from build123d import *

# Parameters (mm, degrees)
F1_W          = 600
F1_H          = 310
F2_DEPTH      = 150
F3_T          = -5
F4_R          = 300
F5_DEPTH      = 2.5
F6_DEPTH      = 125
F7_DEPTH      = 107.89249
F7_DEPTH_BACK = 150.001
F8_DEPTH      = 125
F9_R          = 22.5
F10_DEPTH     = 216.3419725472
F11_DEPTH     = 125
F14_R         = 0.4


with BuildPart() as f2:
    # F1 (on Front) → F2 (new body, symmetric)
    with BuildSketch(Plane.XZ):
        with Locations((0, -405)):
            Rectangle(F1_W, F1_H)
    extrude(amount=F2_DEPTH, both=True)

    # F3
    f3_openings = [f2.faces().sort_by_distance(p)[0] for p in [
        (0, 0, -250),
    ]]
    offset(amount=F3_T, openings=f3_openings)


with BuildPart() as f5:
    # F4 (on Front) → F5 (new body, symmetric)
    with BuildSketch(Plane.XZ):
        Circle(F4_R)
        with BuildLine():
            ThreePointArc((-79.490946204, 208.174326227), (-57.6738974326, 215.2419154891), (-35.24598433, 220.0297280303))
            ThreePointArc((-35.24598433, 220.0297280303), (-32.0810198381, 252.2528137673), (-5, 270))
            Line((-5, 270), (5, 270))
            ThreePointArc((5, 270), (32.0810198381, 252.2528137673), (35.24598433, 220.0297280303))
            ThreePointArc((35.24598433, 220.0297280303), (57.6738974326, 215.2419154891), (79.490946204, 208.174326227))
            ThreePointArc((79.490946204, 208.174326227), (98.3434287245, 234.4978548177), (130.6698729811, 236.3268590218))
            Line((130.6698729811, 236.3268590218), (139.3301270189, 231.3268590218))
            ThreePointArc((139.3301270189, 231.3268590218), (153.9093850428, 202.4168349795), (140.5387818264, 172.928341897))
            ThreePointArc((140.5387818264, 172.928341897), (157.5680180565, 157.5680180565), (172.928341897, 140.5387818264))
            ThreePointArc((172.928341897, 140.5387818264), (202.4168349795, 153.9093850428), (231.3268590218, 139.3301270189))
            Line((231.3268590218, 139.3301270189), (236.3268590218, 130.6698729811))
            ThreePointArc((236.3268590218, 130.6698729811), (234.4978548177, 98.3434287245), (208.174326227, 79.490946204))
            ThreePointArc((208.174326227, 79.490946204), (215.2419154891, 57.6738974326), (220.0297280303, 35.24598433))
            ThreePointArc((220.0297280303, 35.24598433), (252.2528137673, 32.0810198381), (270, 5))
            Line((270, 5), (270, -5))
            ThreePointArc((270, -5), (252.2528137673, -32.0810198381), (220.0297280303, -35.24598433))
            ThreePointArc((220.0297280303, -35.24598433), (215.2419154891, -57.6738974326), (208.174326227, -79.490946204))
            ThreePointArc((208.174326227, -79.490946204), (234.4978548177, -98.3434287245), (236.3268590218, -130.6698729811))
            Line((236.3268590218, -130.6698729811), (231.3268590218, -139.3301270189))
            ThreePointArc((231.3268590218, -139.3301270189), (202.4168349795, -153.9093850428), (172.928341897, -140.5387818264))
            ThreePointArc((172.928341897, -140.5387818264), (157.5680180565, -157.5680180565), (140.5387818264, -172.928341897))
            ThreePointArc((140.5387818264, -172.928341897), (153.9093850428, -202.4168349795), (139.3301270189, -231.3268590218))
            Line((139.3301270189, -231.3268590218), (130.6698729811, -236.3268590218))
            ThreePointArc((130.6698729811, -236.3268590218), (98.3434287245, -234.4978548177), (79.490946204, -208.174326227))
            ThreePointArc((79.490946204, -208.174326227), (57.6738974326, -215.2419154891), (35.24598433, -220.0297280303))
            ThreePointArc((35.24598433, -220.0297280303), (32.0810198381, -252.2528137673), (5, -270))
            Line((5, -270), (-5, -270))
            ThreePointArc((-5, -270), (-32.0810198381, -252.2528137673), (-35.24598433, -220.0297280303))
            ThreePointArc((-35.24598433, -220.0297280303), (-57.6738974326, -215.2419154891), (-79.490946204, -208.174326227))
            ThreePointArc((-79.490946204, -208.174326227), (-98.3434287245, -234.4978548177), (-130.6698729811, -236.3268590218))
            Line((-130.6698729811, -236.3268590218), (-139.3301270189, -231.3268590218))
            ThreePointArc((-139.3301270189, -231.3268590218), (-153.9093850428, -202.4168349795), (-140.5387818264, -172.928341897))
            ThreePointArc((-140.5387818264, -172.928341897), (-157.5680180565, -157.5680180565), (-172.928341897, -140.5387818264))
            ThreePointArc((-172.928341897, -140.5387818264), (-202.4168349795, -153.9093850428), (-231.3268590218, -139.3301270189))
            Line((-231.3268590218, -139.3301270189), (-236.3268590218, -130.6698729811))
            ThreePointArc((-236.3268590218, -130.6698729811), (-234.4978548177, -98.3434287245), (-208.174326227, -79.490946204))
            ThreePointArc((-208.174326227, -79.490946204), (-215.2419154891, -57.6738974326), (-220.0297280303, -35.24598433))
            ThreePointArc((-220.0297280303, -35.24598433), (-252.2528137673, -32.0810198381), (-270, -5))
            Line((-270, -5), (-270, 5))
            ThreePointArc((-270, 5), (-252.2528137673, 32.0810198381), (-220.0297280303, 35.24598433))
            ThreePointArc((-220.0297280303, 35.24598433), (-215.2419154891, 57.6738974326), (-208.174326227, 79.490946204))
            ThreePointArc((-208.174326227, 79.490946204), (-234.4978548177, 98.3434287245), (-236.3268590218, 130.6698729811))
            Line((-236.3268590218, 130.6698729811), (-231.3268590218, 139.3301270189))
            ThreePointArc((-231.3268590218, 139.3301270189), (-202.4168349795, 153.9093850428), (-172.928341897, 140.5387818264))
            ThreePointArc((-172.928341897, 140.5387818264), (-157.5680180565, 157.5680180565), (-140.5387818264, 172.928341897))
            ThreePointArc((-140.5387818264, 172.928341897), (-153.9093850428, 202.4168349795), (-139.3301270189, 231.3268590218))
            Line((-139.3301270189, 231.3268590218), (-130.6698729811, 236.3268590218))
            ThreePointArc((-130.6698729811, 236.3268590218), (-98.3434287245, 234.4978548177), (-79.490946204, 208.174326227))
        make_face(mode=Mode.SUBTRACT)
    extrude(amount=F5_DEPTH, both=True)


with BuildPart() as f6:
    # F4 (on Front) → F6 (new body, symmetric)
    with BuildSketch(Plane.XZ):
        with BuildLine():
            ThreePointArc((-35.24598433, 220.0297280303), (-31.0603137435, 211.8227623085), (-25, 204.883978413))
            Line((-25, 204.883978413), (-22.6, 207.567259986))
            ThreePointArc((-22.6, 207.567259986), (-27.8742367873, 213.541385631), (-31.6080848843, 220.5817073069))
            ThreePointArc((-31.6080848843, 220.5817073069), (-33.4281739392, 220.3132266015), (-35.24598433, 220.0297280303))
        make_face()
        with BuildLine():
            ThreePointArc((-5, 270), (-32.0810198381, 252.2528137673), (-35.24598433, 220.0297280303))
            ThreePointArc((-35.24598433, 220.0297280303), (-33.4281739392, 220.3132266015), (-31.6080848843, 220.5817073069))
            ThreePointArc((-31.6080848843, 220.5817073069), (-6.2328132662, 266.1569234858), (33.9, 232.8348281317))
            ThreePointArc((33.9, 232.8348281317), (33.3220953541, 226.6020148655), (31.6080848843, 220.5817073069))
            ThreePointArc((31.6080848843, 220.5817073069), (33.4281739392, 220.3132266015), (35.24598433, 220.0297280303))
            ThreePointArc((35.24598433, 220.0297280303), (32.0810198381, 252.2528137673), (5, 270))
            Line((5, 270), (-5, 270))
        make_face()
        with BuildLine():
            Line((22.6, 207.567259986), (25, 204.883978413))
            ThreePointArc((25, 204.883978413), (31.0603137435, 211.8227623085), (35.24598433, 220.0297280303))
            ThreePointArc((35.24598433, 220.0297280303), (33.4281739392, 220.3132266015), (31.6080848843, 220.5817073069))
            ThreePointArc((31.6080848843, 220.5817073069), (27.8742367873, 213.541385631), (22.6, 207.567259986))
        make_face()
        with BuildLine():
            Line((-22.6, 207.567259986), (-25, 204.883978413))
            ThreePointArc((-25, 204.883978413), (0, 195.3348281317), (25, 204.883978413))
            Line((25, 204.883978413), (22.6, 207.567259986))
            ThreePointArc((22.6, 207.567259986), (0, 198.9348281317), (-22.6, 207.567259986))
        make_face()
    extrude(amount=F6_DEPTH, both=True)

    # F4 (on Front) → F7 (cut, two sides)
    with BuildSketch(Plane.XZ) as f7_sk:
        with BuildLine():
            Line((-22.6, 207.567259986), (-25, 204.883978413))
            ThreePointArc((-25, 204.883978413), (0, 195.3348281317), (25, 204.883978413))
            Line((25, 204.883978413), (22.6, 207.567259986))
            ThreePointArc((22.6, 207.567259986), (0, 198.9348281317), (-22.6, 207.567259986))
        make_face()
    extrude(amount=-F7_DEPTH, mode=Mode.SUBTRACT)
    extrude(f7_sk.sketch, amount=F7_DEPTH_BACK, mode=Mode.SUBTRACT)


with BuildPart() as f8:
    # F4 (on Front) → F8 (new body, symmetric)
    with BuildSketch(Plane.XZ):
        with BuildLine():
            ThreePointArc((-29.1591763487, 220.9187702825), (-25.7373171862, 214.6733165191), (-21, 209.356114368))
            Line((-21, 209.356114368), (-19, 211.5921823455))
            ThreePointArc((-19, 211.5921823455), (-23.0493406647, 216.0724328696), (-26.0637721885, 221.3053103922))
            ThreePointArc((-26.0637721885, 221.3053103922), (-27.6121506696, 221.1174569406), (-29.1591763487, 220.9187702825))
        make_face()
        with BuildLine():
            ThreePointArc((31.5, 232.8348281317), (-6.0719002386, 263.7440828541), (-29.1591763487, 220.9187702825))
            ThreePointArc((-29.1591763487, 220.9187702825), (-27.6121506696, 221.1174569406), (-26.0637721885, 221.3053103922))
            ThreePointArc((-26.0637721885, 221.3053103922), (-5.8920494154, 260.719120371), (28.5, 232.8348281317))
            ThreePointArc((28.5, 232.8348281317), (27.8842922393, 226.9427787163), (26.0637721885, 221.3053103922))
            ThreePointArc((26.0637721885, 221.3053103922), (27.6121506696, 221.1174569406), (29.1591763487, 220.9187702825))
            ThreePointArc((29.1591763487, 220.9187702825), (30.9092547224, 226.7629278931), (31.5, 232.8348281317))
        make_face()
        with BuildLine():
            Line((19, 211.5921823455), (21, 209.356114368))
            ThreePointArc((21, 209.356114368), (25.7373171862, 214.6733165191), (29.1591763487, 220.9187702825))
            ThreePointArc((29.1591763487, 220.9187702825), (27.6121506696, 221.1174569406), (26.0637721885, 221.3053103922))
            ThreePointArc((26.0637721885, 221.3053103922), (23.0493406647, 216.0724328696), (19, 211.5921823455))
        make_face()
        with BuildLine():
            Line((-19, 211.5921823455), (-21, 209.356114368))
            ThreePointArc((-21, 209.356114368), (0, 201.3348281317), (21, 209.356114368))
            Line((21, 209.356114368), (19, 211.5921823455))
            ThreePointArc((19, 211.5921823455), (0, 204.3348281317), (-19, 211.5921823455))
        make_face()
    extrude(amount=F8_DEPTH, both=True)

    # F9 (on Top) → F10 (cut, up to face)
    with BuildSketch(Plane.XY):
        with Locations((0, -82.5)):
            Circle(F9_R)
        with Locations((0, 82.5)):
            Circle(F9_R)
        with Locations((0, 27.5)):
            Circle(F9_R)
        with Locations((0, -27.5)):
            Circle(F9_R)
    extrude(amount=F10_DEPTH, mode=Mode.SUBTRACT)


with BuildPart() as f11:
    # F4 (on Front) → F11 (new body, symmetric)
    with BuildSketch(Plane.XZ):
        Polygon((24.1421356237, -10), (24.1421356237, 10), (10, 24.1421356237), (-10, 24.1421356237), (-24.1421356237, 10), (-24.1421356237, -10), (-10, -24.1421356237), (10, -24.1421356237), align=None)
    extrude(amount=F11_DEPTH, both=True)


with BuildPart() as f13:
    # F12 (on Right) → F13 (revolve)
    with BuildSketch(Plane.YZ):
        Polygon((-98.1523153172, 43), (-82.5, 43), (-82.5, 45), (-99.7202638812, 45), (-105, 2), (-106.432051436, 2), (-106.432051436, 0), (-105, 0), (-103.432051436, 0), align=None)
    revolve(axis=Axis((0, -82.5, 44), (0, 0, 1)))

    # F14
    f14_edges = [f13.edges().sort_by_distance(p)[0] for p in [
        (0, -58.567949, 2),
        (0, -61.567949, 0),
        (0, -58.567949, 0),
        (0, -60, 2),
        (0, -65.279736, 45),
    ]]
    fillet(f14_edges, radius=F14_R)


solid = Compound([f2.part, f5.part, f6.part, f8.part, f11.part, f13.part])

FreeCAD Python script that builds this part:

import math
import FreeCAD as App
import Part
import Sketcher

V = App.Vector
Q = App.Units.Quantity


def edges_at(feature, points):
    """Names of the edges that pass closest to the given points."""
    edges = feature.Shape.Edges
    near = lambda p: min(range(len(edges)), key=lambda i: edges[i].distToShape(Part.Vertex(*p))[0])
    return sorted({f"Edge{near(p) + 1}" for p in points})


def faces_at(feature, points):
    """Names of the faces that lie closest to the given points."""
    faces = feature.Shape.Faces
    near = lambda p: min(range(len(faces)), key=lambda i: faces[i].distToShape(Part.Vertex(*p))[0])
    return sorted({f"Face{near(p) + 1}" for p in points})


def add_polygon(sketch, points):
    """Adds a closed chain of lines whose ends are joined by coincident constraints."""
    first, n = sketch.GeometryCount, len(points)
    for a, b in zip(points, points[1:] + points[:1]):
        sketch.addGeometry(Part.LineSegment(App.Vector(*a, 0), App.Vector(*b, 0)), False)
    for i in range(n):
        sketch.addConstraint(Sketcher.Constraint("Coincident", first + i, 2, first + (i + 1) % n, 1))

doc = App.newDocument("Part")
body = doc.addObject("PartDesign::Body", "Body")

sketch1 = body.newObject("Sketcher::SketchObject", "Sketch")
sketch1.AttachmentSupport = (doc.getObject("XZ_Plane"), [""])
sketch1.MapMode = "FlatFace"
add_polygon(sketch1, [(-300, -250), (-300, -560), (300, -560), (300, -250)])
sketch1.addConstraint(Sketcher.Constraint("Vertical", 0))
sketch1.addConstraint(Sketcher.Constraint("Horizontal", 1))
sketch1.addConstraint(Sketcher.Constraint("Vertical", 2))
sketch1.addConstraint(Sketcher.Constraint("Horizontal", 3))
sketch1.addConstraint(Sketcher.Constraint("DistanceX", 1, 1, 1, 2, 600.0))
sketch1.addConstraint(Sketcher.Constraint("DistanceY", 0, 2, 0, 1, 310.0))
sketch1.addConstraint(Sketcher.Constraint("DistanceX", 0, 2, -1, 1, 300.0))
sketch1.addConstraint(Sketcher.Constraint("DistanceY", 0, 2, -1, 1, 560.0))
pad1 = body.newObject("PartDesign::Pad", "Pad")
pad1.Profile = sketch1
pad1.Length = 300
pad1.Midplane = True
doc.recompute()

thickness = body.newObject("PartDesign::Thickness", "Thickness")
thickness.Base = (pad1, faces_at(pad1, [(0, 0, -250)]))
thickness.Value = 5
thickness.Reversed = True
thickness.Join = "Arc"
body2 = doc.addObject("PartDesign::Body", "Body001")

sketch2 = body2.newObject("Sketcher::SketchObject", "Sketch001")
sketch2.AttachmentSupport = (doc.getObject("XZ_Plane001"), [""])
sketch2.MapMode = "FlatFace"
sketch2.addGeometry(Part.Circle(V(0, 0, 0), V(0, 0, 1), 300), False)
sketch2.addGeometry(Part.ArcOfCircle(Part.Circle(V(-116, 202, 0), V(0, 0, 1), 38), math.radians(10), math.radians(112)), False)
sketch2.addGeometry(Part.ArcOfCircle(Part.Circle(V(0, 0, 0), V(0, 0, 1), 223), math.radians(99.1), math.radians(110.9)), False)
sketch2.addGeometry(Part.ArcOfCircle(Part.Circle(V(0, 233, 0), V(0, 0, 1), 38), math.radians(98), math.radians(200)), False)
sketch2.addGeometry(Part.LineSegment(V(-5, 270, 0), V(5, 270, 0)), False)
sketch2.addGeometry(Part.ArcOfCircle(Part.Circle(V(0, 233, 0), V(0, 0, 1), 38), math.radians(-20), math.radians(82)), False)
sketch2.addGeometry(Part.ArcOfCircle(Part.Circle(V(0, 0, 0), V(0, 0, 1), 223), math.radians(69.1), math.radians(80.9)), False)
sketch2.addGeometry(Part.ArcOfCircle(Part.Circle(V(116, 202, 0), V(0, 0, 1), 38), math.radians(68), math.radians(170)), False)
sketch2.addGeometry(Part.LineSegment(V(131, 236, 0), V(139, 231, 0)), False)
sketch2.addGeometry(Part.ArcOfCircle(Part.Circle(V(116, 202, 0), V(0, 0, 1), 38), math.radians(-50), math.radians(52)), False)
sketch2.addGeometry(Part.ArcOfCircle(Part.Circle(V(0, 0, 0), V(0, 0, 1), 223), math.radians(39.1), math.radians(50.9)), False)
sketch2.addGeometry(Part.ArcOfCircle(Part.Circle(V(202, 116, 0), V(0, 0, 1), 38), math.radians(38), math.radians(140)), False)
sketch2.addGeometry(Part.LineSegment(V(231, 139, 0), V(236, 131, 0)), False)
sketch2.addGeometry(Part.ArcOfCircle(Part.Circle(V(202, 116, 0), V(0, 0, 1), 38), math.radians(-80), math.radians(22)), False)
sketch2.addGeometry(Part.ArcOfCircle(Part.Circle(V(0, 0, 0), V(0, 0, 1), 223), math.radians(9.1), math.radians(20.9)), False)
sketch2.addGeometry(Part.ArcOfCircle(Part.Circle(V(233, 0, 0), V(0, 0, 1), 38), math.radians(8), math.radians(110)), False)
sketch2.addGeometry(Part.LineSegment(V(270, 5, 0), V(270, -5, 0)), False)
sketch2.addGeometry(Part.ArcOfCircle(Part.Circle(V(233, 0, 0), V(0, 0, 1), 38), math.radians(-110), math.radians(-8)), False)
sketch2.addGeometry(Part.ArcOfCircle(Part.Circle(V(0, 0, 0), V(0, 0, 1), 223), math.radians(-20.9), math.radians(-9.1)), False)
sketch2.addGeometry(Part.ArcOfCircle(Part.Circle(V(202, -116, 0), V(0, 0, 1), 38), math.radians(-22), math.radians(80)), False)
sketch2.addGeometry(Part.LineSegment(V(236, -131, 0), V(231, -139, 0)), False)
sketch2.addGeometry(Part.ArcOfCircle(Part.Circle(V(202, -116, 0), V(0, 0, 1), 38), math.radians(-140), math.radians(-38)), False)
sketch2.addGeometry(Part.ArcOfCircle(Part.Circle(V(0, 0, 0), V(0, 0, 1), 223), math.radians(-50.9), math.radians(-39.1)), False)
sketch2.addGeometry(Part.ArcOfCircle(Part.Circle(V(116, -202, 0), V(0, 0, 1), 38), math.radians(-52), math.radians(50)), False)
sketch2.addGeometry(Part.LineSegment(V(139, -231, 0), V(131, -236, 0)), False)
sketch2.addGeometry(Part.ArcOfCircle(Part.Circle(V(116, -202, 0), V(0, 0, 1), 38), math.radians(-170), math.radians(-68)), False)
sketch2.addGeometry(Part.ArcOfCircle(Part.Circle(V(0, 0, 0), V(0, 0, 1), 223), math.radians(-80.9), math.radians(-69.1)), False)
sketch2.addGeometry(Part.ArcOfCircle(Part.Circle(V(0, -233, 0), V(0, 0, 1), 38), math.radians(-82), math.radians(20)), False)
sketch2.addGeometry(Part.LineSegment(V(5, -270, 0), V(-5, -270, 0)), False)
sketch2.addGeometry(Part.ArcOfCircle(Part.Circle(V(0, -233, 0), V(0, 0, 1), 38), math.radians(160), math.radians(262)), False)
sketch2.addGeometry(Part.ArcOfCircle(Part.Circle(V(0, 0, 0), V(0, 0, 1), 223), math.radians(-110.9), math.radians(-99.1)), False)
sketch2.addGeometry(Part.ArcOfCircle(Part.Circle(V(-116, -202, 0), V(0, 0, 1), 38), math.radians(-112), math.radians(-10)), False)
sketch2.addGeometry(Part.LineSegment(V(-131, -236, 0), V(-139, -231, 0)), False)
sketch2.addGeometry(Part.ArcOfCircle(Part.Circle(V(-116, -202, 0), V(0, 0, 1), 38), math.radians(130), math.radians(232)), False)
sketch2.addGeometry(Part.ArcOfCircle(Part.Circle(V(0, 0, 0), V(0, 0, 1), 223), math.radians(-140.9), math.radians(-129.1)), False)
sketch2.addGeometry(Part.ArcOfCircle(Part.Circle(V(-202, -116, 0), V(0, 0, 1), 38), math.radians(-142), math.radians(-40)), False)
sketch2.addGeometry(Part.LineSegment(V(-231, -139, 0), V(-236, -131, 0)), False)
sketch2.addGeometry(Part.ArcOfCircle(Part.Circle(V(-202, -116, 0), V(0, 0, 1), 38), math.radians(100), math.radians(202)), False)
sketch2.addGeometry(Part.ArcOfCircle(Part.Circle(V(0, 0, 0), V(0, 0, 1), 223), math.radians(-170.9), math.radians(-159.1)), False)
sketch2.addGeometry(Part.ArcOfCircle(Part.Circle(V(-233, 0, 0), V(0, 0, 1), 38), math.radians(-172), math.radians(-70)), False)
sketch2.addGeometry(Part.LineSegment(V(-270, -5, 0), V(-270, 5, 0)), False)
sketch2.addGeometry(Part.ArcOfCircle(Part.Circle(V(-233, 0, 0), V(0, 0, 1), 38), math.radians(70), math.radians(172)), False)
sketch2.addGeometry(Part.ArcOfCircle(Part.Circle(V(0, 0, 0), V(0, 0, 1), 223), math.radians(159.1), math.radians(170.9)), False)
sketch2.addGeometry(Part.ArcOfCircle(Part.Circle(V(-202, 116, 0), V(0, 0, 1), 38), math.radians(158), math.radians(260)), False)
sketch2.addGeometry(Part.LineSegment(V(-236, 131, 0), V(-231, 139, 0)), False)
sketch2.addGeometry(Part.ArcOfCircle(Part.Circle(V(-202, 116, 0), V(0, 0, 1), 38), math.radians(40), math.radians(142)), False)
sketch2.addGeometry(Part.ArcOfCircle(Part.Circle(V(0, 0, 0), V(0, 0, 1), 223), math.radians(129.1), math.radians(140.9)), False)
sketch2.addGeometry(Part.ArcOfCircle(Part.Circle(V(-116, 202, 0), V(0, 0, 1), 38), math.radians(128), math.radians(230)), False)
sketch2.addGeometry(Part.LineSegment(V(-139, 231, 0), V(-131, 236, 0)), False)
sketch2.addConstraint(Sketcher.Constraint("Coincident", 1, 1, 2, 2))
sketch2.addConstraint(Sketcher.Constraint("Coincident", 2, 1, 3, 2))
sketch2.addConstraint(Sketcher.Constraint("Coincident", 3, 1, 4, 1))
sketch2.addConstraint(Sketcher.Constraint("Coincident", 4, 2, 5, 2))
sketch2.addConstraint(Sketcher.Constraint("Coincident", 5, 1, 6, 2))
sketch2.addConstraint(Sketcher.Constraint("Coincident", 6, 1, 7, 2))
sketch2.addConstraint(Sketcher.Constraint("Coincident", 7, 1, 8, 1))
sketch2.addConstraint(Sketcher.Constraint("Coincident", 8, 2, 9, 2))
sketch2.addConstraint(Sketcher.Constraint("Coincident", 9, 1, 10, 2))
sketch2.addConstraint(Sketcher.Constraint("Coincident", 10, 1, 11, 2))
sketch2.addConstraint(Sketcher.Constraint("Coincident", 11, 1, 12, 1))
sketch2.addConstraint(Sketcher.Constraint("Coincident", 12, 2, 13, 2))
sketch2.addConstraint(Sketcher.Constraint("Coincident", 13, 1, 14, 2))
sketch2.addConstraint(Sketcher.Constraint("Coincident", 14, 1, 15, 2))
sketch2.addConstraint(Sketcher.Constraint("Coincident", 15, 1, 16, 1))
sketch2.addConstraint(Sketcher.Constraint("Coincident", 16, 2, 17, 2))
sketch2.addConstraint(Sketcher.Constraint("Coincident", 17, 1, 18, 2))
sketch2.addConstraint(Sketcher.Constraint("Coincident", 18, 1, 19, 2))
sketch2.addConstraint(Sketcher.Constraint("Coincident", 19, 1, 20, 1))
sketch2.addConstraint(Sketcher.Constraint("Coincident", 20, 2, 21, 2))
sketch2.addConstraint(Sketcher.Constraint("Coincident", 21, 1, 22, 2))
sketch2.addConstraint(Sketcher.Constraint("Coincident", 22, 1, 23, 2))
sketch2.addConstraint(Sketcher.Constraint("Coincident", 23, 1, 24, 1))
sketch2.addConstraint(Sketcher.Constraint("Coincident", 24, 2, 25, 2))
sketch2.addConstraint(Sketcher.Constraint("Coincident", 25, 1, 26, 2))
sketch2.addConstraint(Sketcher.Constraint("Coincident", 26, 1, 27, 2))
sketch2.addConstraint(Sketcher.Constraint("Coincident", 27, 1, 28, 1))
sketch2.addConstraint(Sketcher.Constraint("Coincident", 28, 2, 29, 2))
sketch2.addConstraint(Sketcher.Constraint("Coincident", 29, 1, 30, 2))
sketch2.addConstraint(Sketcher.Constraint("Coincident", 30, 1, 31, 2))
sketch2.addConstraint(Sketcher.Constraint("Coincident", 31, 1, 32, 1))
sketch2.addConstraint(Sketcher.Constraint("Coincident", 32, 2, 33, 2))
sketch2.addConstraint(Sketcher.Constraint("Coincident", 33, 1, 34, 2))
sketch2.addConstraint(Sketcher.Constraint("Coincident", 34, 1, 35, 2))
sketch2.addConstraint(Sketcher.Constraint("Coincident", 35, 1, 36, 1))
sketch2.addConstraint(Sketcher.Constraint("Coincident", 36, 2, 37, 2))
sketch2.addConstraint(Sketcher.Constraint("Coincident", 37, 1, 38, 2))
sketch2.addConstraint(Sketcher.Constraint("Coincident", 38, 1, 39, 2))
sketch2.addConstraint(Sketcher.Constraint("Coincident", 39, 1, 40, 1))
sketch2.addConstraint(Sketcher.Constraint("Coincident", 40, 2, 41, 2))
sketch2.addConstraint(Sketcher.Constraint("Coincident", 41, 1, 42, 2))
sketch2.addConstraint(Sketcher.Constraint("Coincident", 42, 1, 43, 2))
sketch2.addConstraint(Sketcher.Constraint("Coincident", 43, 1, 44, 1))
sketch2.addConstraint(Sketcher.Constraint("Coincident", 44, 2, 45, 2))
sketch2.addConstraint(Sketcher.Constraint("Coincident", 45, 1, 46, 2))
sketch2.addConstraint(Sketcher.Constraint("Coincident", 46, 1, 47, 2))
sketch2.addConstraint(Sketcher.Constraint("Coincident", 47, 1, 48, 1))
sketch2.addConstraint(Sketcher.Constraint("Coincident", 48, 2, 1, 2))
sketch2.addConstraint(Sketcher.Constraint("Horizontal", 4))
sketch2.addConstraint(Sketcher.Constraint("Vertical", 16))
sketch2.addConstraint(Sketcher.Constraint("Horizontal", 28))
sketch2.addConstraint(Sketcher.Constraint("Vertical", 40))
sketch2.addConstraint(Sketcher.Constraint("Coincident", 0, 3, -1, 1))
sketch2.addConstraint(Sketcher.Constraint("Coincident", 2, 3, -1, 1))
sketch2.addConstraint(Sketcher.Constraint("Coincident", 6, 3, -1, 1))
sketch2.addConstraint(Sketcher.Constraint("Coincident", 10, 3, -1, 1))
sketch2.addConstraint(Sketcher.Constraint("Coincident", 14, 3, -1, 1))
sketch2.addConstraint(Sketcher.Constraint("Coincident", 18, 3, -1, 1))
sketch2.addConstraint(Sketcher.Constraint("Coincident", 22, 3, -1, 1))
sketch2.addConstraint(Sketcher.Constraint("Coincident", 26, 3, -1, 1))
sketch2.addConstraint(Sketcher.Constraint("Coincident", 30, 3, -1, 1))
sketch2.addConstraint(Sketcher.Constraint("Coincident", 34, 3, -1, 1))
sketch2.addConstraint(Sketcher.Constraint("Coincident", 38, 3, -1, 1))
sketch2.addConstraint(Sketcher.Constraint("Coincident", 42, 3, -1, 1))
sketch2.addConstraint(Sketcher.Constraint("Coincident", 46, 3, -1, 1))
sketch2.addConstraint(Sketcher.Constraint("Coincident", 5, 3, 3, 3))
sketch2.addConstraint(Sketcher.Constraint("Coincident", 9, 3, 7, 3))
sketch2.addConstraint(Sketcher.Constraint("Coincident", 13, 3, 11, 3))
sketch2.addConstraint(Sketcher.Constraint("Coincident", 17, 3, 15, 3))
sketch2.addConstraint(Sketcher.Constraint("Coincident", 21, 3, 19, 3))
sketch2.addConstraint(Sketcher.Constraint("Coincident", 25, 3, 23, 3))
sketch2.addConstraint(Sketcher.Constraint("Coincident", 29, 3, 27, 3))
sketch2.addConstraint(Sketcher.Constraint("Coincident", 33, 3, 31, 3))
sketch2.addConstraint(Sketcher.Constraint("Coincident", 37, 3, 35, 3))
sketch2.addConstraint(Sketcher.Constraint("Coincident", 41, 3, 39, 3))
sketch2.addConstraint(Sketcher.Constraint("Coincident", 45, 3, 43, 3))
sketch2.addConstraint(Sketcher.Constraint("Coincident", 47, 3, 1, 3))
sketch2.addConstraint(Sketcher.Constraint("Equal", 1, 3))
sketch2.addConstraint(Sketcher.Constraint("Equal", 3, 5))
sketch2.addConstraint(Sketcher.Constraint("Equal", 2, 6))
sketch2.addConstraint(Sketcher.Constraint("Equal", 5, 7))
sketch2.addConstraint(Sketcher.Constraint("Equal", 7, 9))
sketch2.addConstraint(Sketcher.Constraint("Equal", 6, 10))
sketch2.addConstraint(Sketcher.Constraint("Equal", 9, 11))
sketch2.addConstraint(Sketcher.Constraint("Equal", 11, 13))
sketch2.addConstraint(Sketcher.Constraint("Equal", 10, 14))
sketch2.addConstraint(Sketcher.Constraint("Equal", 13, 15))
sketch2.addConstraint(Sketcher.Constraint("Equal", 15, 17))
sketch2.addConstraint(Sketcher.Constraint("Equal", 14, 18))
sketch2.addConstraint(Sketcher.Constraint("Equal", 17, 19))
sketch2.addConstraint(Sketcher.Constraint("Equal", 19, 21))
sketch2.addConstraint(Sketcher.Constraint("Equal", 18, 22))
sketch2.addConstraint(Sketcher.Constraint("Equal", 21, 23))
sketch2.addConstraint(Sketcher.Constraint("Equal", 23, 25))
sketch2.addConstraint(Sketcher.Constraint("Equal", 22, 26))
sketch2.addConstraint(Sketcher.Constraint("Equal", 25, 27))
sketch2.addConstraint(Sketcher.Constraint("Equal", 27, 29))
sketch2.addConstraint(Sketcher.Constraint("Equal", 26, 30))
sketch2.addConstraint(Sketcher.Constraint("Equal", 29, 31))
sketch2.addConstraint(Sketcher.Constraint("Equal", 31, 33))
sketch2.addConstraint(Sketcher.Constraint("Equal", 30, 34))
sketch2.addConstraint(Sketcher.Constraint("Equal", 33, 35))
sketch2.addConstraint(Sketcher.Constraint("Equal", 35, 37))
sketch2.addConstraint(Sketcher.Constraint("Equal", 34, 38))
sketch2.addConstraint(Sketcher.Constraint("Equal", 37, 39))
sketch2.addConstraint(Sketcher.Constraint("Equal", 39, 41))
sketch2.addConstraint(Sketcher.Constraint("Equal", 38, 42))
sketch2.addConstraint(Sketcher.Constraint("Equal", 41, 43))
sketch2.addConstraint(Sketcher.Constraint("Equal", 43, 45))
sketch2.addConstraint(Sketcher.Constraint("Equal", 42, 46))
sketch2.addConstraint(Sketcher.Constraint("Equal", 45, 47))
sketch2.addConstraint(Sketcher.Constraint("Symmetric", 1, 3, 23, 3, -1, 1))
sketch2.addConstraint(Sketcher.Constraint("Symmetric", 3, 3, 27, 3, -1, 1))
sketch2.addConstraint(Sketcher.Constraint("Symmetric", 7, 3, 31, 3, -1, 1))
sketch2.addConstraint(Sketcher.Constraint("Symmetric", 11, 3, 35, 3, -1, 1))
sketch2.addConstraint(Sketcher.Constraint("Symmetric", 15, 3, 39, 3, -1, 1))
sketch2.addConstraint(Sketcher.Constraint("Symmetric", 19, 3, 43, 3, -1, 1))
sketch2.addConstraint(Sketcher.Constraint("Symmetric", 1, 3, 7, 3, -2))
sketch2.addConstraint(Sketcher.Constraint("Symmetric", 19, 3, 35, 3, -2))
sketch2.addConstraint(Sketcher.Constraint("Symmetric", 16, 2, 39, 1, -2))
sketch2.addConstraint(Sketcher.Constraint("Symmetric", 4, 2, 27, 1, -1))
sketch2.addConstraint(Sketcher.Constraint("Perpendicular", 8, 20))
sketch2.addConstraint(Sketcher.Constraint("Perpendicular", 12, 24))
sketch2.addConstraint(Sketcher.Constraint("Perpendicular", 20, 32))
sketch2.addConstraint(Sketcher.Constraint("Perpendicular", 24, 36))
sketch2.addConstraint(Sketcher.Constraint("Perpendicular", 32, 44))
sketch2.addConstraint(Sketcher.Constraint("Perpendicular", 36, 48))
sketch2.addConstraint(Sketcher.Constraint("Horizontal", 24, 2, 31, 1))
sketch2.addConstraint(Sketcher.Constraint("Horizontal", 23, 1, 32, 2))
sketch2.addConstraint(Sketcher.Constraint("Horizontal", 20, 2, 35, 1))
sketch2.addConstraint(Sketcher.Constraint("Horizontal", 12, 2, 43, 1))
sketch2.addConstraint(Sketcher.Constraint("Horizontal", 8, 2, 47, 1))
sketch2.addConstraint(Sketcher.Constraint("Vertical", 12, 2, 19, 1))
sketch2.addConstraint(Sketcher.Constraint("Vertical", 8, 2, 23, 1))
sketch2.addConstraint(Sketcher.Constraint("Equal", 28, 16))
sketch2.addConstraint(Sketcher.Constraint("Equal", 8, 12))
sketch2.addConstraint(Sketcher.Constraint("Diameter", 0, 600.0))
sketch2.addConstraint(Sketcher.Constraint("Radius", 1, 37.5))
sketch2.addConstraint(Sketcher.Constraint("DistanceX", 4, 1, 4, 2, 10.0))
sketch2.addConstraint(Sketcher.Constraint("Angle", 8, Q("-30 deg")))
sketch2.addConstraint(Sketcher.Constraint("Distance", 8, 10.0))
sketch2.addConstraint(Sketcher.Constraint("DistanceY", -1, 1, 3, 1, 270.0))
sketch2.addConstraint(Sketcher.Constraint("DistanceX", -1, 1, 15, 1, 270.0))
sketch2.addConstraint(Sketcher.Constraint("Radius", 2, 222.834828))
sketch2.addConstraint(Sketcher.Constraint("DistanceY", -1, 1, 7, 1, 236.326859))
sketch2.addConstraint(Sketcher.Constraint("DistanceX", -1, 1, 9, 1, 140.538782))
sketch2.addConstraint(Sketcher.Constraint("DistanceX", -1, 1, 11, 1, 231.326859))
sketch2.addConstraint(Sketcher.Constraint("DistanceX", -1, 1, 21, 1, 172.928342))
pad2 = body2.newObject("PartDesign::Pad", "Pad001")
pad2.Profile = sketch2
pad2.Length = 5
pad2.Midplane = True
body3 = doc.addObject("PartDesign::Body", "Body002")

sketch3 = body3.newObject("Sketcher::SketchObject", "Sketch002")
sketch3.AttachmentSupport = (doc.getObject("XZ_Plane002"), [""])
sketch3.MapMode = "FlatFace"
sketch3.addGeometry(Part.ArcOfCircle(Part.Circle(V(0, 233, 0), V(0, 0, 1), 37), math.radians(-160), math.radians(-132)), False)
sketch3.addGeometry(Part.ArcOfCircle(Part.Circle(V(0, 233, 0), V(0, 0, 1), 38), math.radians(-132), math.radians(-48)), False)
sketch3.addGeometry(Part.ArcOfCircle(Part.Circle(V(0, 233, 0), V(0, 0, 1), 37), math.radians(-48), math.radians(-20)), False)
sketch3.addGeometry(Part.ArcOfCircle(Part.Circle(V(0, 233, 0), V(0, 0, 1), 38), math.radians(-20), math.radians(82)), False)
sketch3.addGeometry(Part.LineSegment(V(5, 270, 0), V(-5, 270, 0)), False)
sketch3.addGeometry(Part.ArcOfCircle(Part.Circle(V(0, 233, 0), V(0, 0, 1), 38), math.radians(98), math.radians(200)), False)
sketch3.addGeometry(Part.ArcOfCircle(Part.Circle(V(0, 233, 0), V(0, 0, 1), 34), math.radians(-159), math.radians(-132)), False)
sketch3.addGeometry(Part.ArcOfCircle(Part.Circle(V(0, 233, 0), V(0, 0, 1), 34), math.radians(0), math.radians(201)), False)
sketch3.addGeometry(Part.ArcOfCircle(Part.Circle(V(0, 233, 0), V(0, 0, 1), 34), math.radians(-21), math.radians(0)), False)
sketch3.addGeometry(Part.ArcOfCircle(Part.Circle(V(0, 233, 0), V(0, 0, 1), 34), math.radians(-48), math.radians(-21)), False)
sketch3.addGeometry(Part.ArcOfCircle(Part.Circle(V(0, 233, 0), V(0, 0, 1), 34), math.radians(-132), math.radians(-48)), False)
sketch3.addConstraint(Sketcher.Constraint("Tangent", 0, 2, 1, 1))
sketch3.addConstraint(Sketcher.Constraint("Tangent", 1, 2, 2, 1))
sketch3.addConstraint(Sketcher.Constraint("Tangent", 2, 2, 3, 1))
sketch3.addConstraint(Sketcher.Constraint("Coincident", 3, 2, 4, 1))
sketch3.addConstraint(Sketcher.Constraint("Coincident", 4, 2, 5, 1))
sketch3.addConstraint(Sketcher.Constraint("Tangent", 5, 2, 0, 1))
sketch3.addConstraint(Sketcher.Constraint("Tangent", 6, 1, 7, 2))
sketch3.addConstraint(Sketcher.Constraint("Tangent", 7, 1, 8, 2))
sketch3.addConstraint(Sketcher.Constraint("Tangent", 8, 1, 9, 2))
sketch3.addConstraint(Sketcher.Constraint("Tangent", 9, 1, 10, 2))
sketch3.addConstraint(Sketcher.Constraint("Tangent", 10, 1, 6, 2))
sketch3.addConstraint(Sketcher.Constraint("Horizontal", 4))
sketch3.addConstraint(Sketcher.Constraint("Coincident", 2, 3, 0, 3))
sketch3.addConstraint(Sketcher.Constraint("Coincident", 6, 3, 0, 3))
sketch3.addConstraint(Sketcher.Constraint("Coincident", 8, 3, 0, 3))
sketch3.addConstraint(Sketcher.Constraint("Equal", 2, 3))
sketch3.addConstraint(Sketcher.Constraint("Equal", 3, 5))
sketch3.addConstraint(Sketcher.Constraint("Symmetric", 0, 2, 1, 2, -2))
sketch3.addConstraint(Sketcher.Constraint("Horizontal", 2, 2, 5, 2))
sketch3.addConstraint(Sketcher.Constraint("Horizontal", 10, 3, 7, 1))
sketch3.addConstraint(Sketcher.Constraint("Horizontal", 6, 1, 8, 1))
sketch3.addConstraint(Sketcher.Constraint("Horizontal", 9, 1, 10, 1))
sketch3.addConstraint(Sketcher.Constraint("Radius", 0, 37.5))
sketch3.addConstraint(Sketcher.Constraint("Radius", 6, 33.9))
sketch3.addConstraint(Sketcher.Constraint("DistanceX", 4, 2, 4, 1, 10.0))
sketch3.addConstraint(Sketcher.Constraint("DistanceX", 0, 2, -1, 1, 25.0))
sketch3.addConstraint(Sketcher.Constraint("DistanceY", -1, 1, 3, 2, 270.0))
sketch3.addConstraint(Sketcher.Constraint("DistanceX", -1, 1, 9, 1, 22.6))
sketch3.addConstraint(Sketcher.Constraint("DistanceY", 2, 2, 2, 3, 12.8051))
sketch3.addConstraint(Sketcher.Constraint("DistanceX", 5, 2, 6, 1, 3.637899))
pad3 = body3.newObject("PartDesign::Pad", "Pad002")
pad3.Profile = sketch3
pad3.Length = 250
pad3.Midplane = True

sketch4 = body3.newObject("Sketcher::SketchObject", "Sketch003")
sketch4.AttachmentSupport = (doc.getObject("XZ_Plane002"), [""])
sketch4.MapMode = "FlatFace"
sketch4.addGeometry(Part.LineSegment(V(-22.6, 207.6, 0), V(-25, 204.9, 0)), False)
sketch4.addGeometry(Part.ArcOfCircle(Part.Circle(V(0, 232.8, 0), V(0, 0, 1), 37.5), math.radians(-132), math.radians(-48)), False)
sketch4.addGeometry(Part.LineSegment(V(25, 204.9, 0), V(22.6, 207.6, 0)), False)
sketch4.addGeometry(Part.ArcOfCircle(Part.Circle(V(0, 232.8, 0), V(0, 0, 1), 33.9), math.radians(-132), math.radians(-48)), False)
sketch4.addConstraint(Sketcher.Constraint("Coincident", 0, 2, 1, 1))
sketch4.addConstraint(Sketcher.Constraint("Coincident", 1, 2, 2, 1))
sketch4.addConstraint(Sketcher.Constraint("Coincident", 2, 2, 3, 2))
sketch4.addConstraint(Sketcher.Constraint("Coincident", 3, 1, 0, 1))
sketch4.addConstraint(Sketcher.Constraint("Coincident", 3, 3, 1, 3))
sketch4.addConstraint(Sketcher.Constraint("Symmetric", 0, 2, 1, 2, -2))
sketch4.addConstraint(Sketcher.Constraint("Horizontal", 2, 2, 3, 1))
sketch4.addConstraint(Sketcher.Constraint("Radius", 1, 37.5))
sketch4.addConstraint(Sketcher.Constraint("Radius", 3, 33.9))
sketch4.addConstraint(Sketcher.Constraint("DistanceX", 0, 2, -1, 1, 25.0))
sketch4.addConstraint(Sketcher.Constraint("DistanceX", -1, 1, 2, 2, 22.6))
sketch4.addConstraint(Sketcher.Constraint("DistanceY", -1, 1, 1, 3, 232.834828))
pocket1 = body3.newObject("PartDesign::Pocket", "Pocket")
pocket1.Profile = sketch4
pocket1.Type = "TwoLengths"
pocket1.Length = 107.89249
pocket1.Length2 = 150.001
body4 = doc.addObject("PartDesign::Body", "Body003")

sketch5 = body4.newObject("Sketcher::SketchObject", "Sketch004")
sketch5.AttachmentSupport = (doc.getObject("XZ_Plane003"), [""])
sketch5.MapMode = "FlatFace"
sketch5.addGeometry(Part.ArcOfCircle(Part.Circle(V(0, 233, 0), V(0, 0, 1), 32), math.radians(-158), math.radians(0)), False)
sketch5.addGeometry(Part.ArcOfCircle(Part.Circle(V(0, 233, 0), V(0, 0, 1), 32), math.radians(0), math.radians(202)), False)
sketch5.addGeometry(Part.ArcOfCircle(Part.Circle(V(0, 233, 0), V(0, 0, 1), 28), math.radians(-156), math.radians(-132)), False)
sketch5.addGeometry(Part.ArcOfCircle(Part.Circle(V(0, 233, 0), V(0, 0, 1), 28), math.radians(0), math.radians(204)), False)
sketch5.addGeometry(Part.ArcOfCircle(Part.Circle(V(0, 233, 0), V(0, 0, 1), 28), math.radians(-24), math.radians(0)), False)
sketch5.addGeometry(Part.ArcOfCircle(Part.Circle(V(0, 233, 0), V(0, 0, 1), 28), math.radians(-48), math.radians(-24)), False)
sketch5.addGeometry(Part.ArcOfCircle(Part.Circle(V(0, 233, 0), V(0, 0, 1), 28), math.radians(-132), math.radians(-48)), False)
sketch5.addConstraint(Sketcher.Constraint("Tangent", 0, 1, 1, 2))
sketch5.addConstraint(Sketcher.Constraint("Coincident", 1, 1, 0, 2))
sketch5.addConstraint(Sketcher.Constraint("Tangent", 2, 1, 3, 2))
sketch5.addConstraint(Sketcher.Constraint("Tangent", 3, 1, 4, 2))
sketch5.addConstraint(Sketcher.Constraint("Tangent", 4, 1, 5, 2))
sketch5.addConstraint(Sketcher.Constraint("Tangent", 5, 1, 6, 2))
sketch5.addConstraint(Sketcher.Constraint("Tangent", 6, 1, 2, 2))
sketch5.addConstraint(Sketcher.Constraint("Coincident", 2, 3, 0, 3))
sketch5.addConstraint(Sketcher.Constraint("Coincident", 4, 3, 0, 3))
sketch5.addConstraint(Sketcher.Constraint("Symmetric", 2, 1, 4, 1, -2))
sketch5.addConstraint(Sketcher.Constraint("Horizontal", 6, 3, 1, 1))
sketch5.addConstraint(Sketcher.Constraint("Horizontal", 1, 1, 3, 1))
sketch5.addConstraint(Sketcher.Constraint("Horizontal", 5, 1, 6, 1))
sketch5.addConstraint(Sketcher.Constraint("Radius", 0, 31.5))
sketch5.addConstraint(Sketcher.Constraint("Radius", 2, 28.5))
sketch5.addConstraint(Sketcher.Constraint("DistanceX", -1, 1, 5, 1, 19.0))
sketch5.addConstraint(Sketcher.Constraint("DistanceY", -1, 1, 0, 3, 232.834828))
sketch5.addConstraint(Sketcher.Constraint("DistanceY", -1, 1, 0, 1, 220.91877))
sketch5.addConstraint(Sketcher.Constraint("DistanceY", -1, 1, 2, 1, 221.30531))
pad4 = body4.newObject("PartDesign::Pad", "Pad003")
pad4.Profile = sketch5
pad4.Length = 250
pad4.Midplane = True

sketch6 = body4.newObject("Sketcher::SketchObject", "Sketch005")
sketch6.AttachmentSupport = (doc.getObject("XY_Plane003"), [""])
sketch6.MapMode = "FlatFace"
sketch6.addGeometry(Part.Circle(V(0, -82, 0), V(0, 0, 1), 22), False)
sketch6.addGeometry(Part.Circle(V(0, 82, 0), V(0, 0, 1), 22), False)
sketch6.addGeometry(Part.Circle(V(0, 28, 0), V(0, 0, 1), 22), False)
sketch6.addGeometry(Part.Circle(V(0, -28, 0), V(0, 0, 1), 22), False)
sketch6.addConstraint(Sketcher.Constraint("Equal", 0, 1))
sketch6.addConstraint(Sketcher.Constraint("Equal", 1, 2))
sketch6.addConstraint(Sketcher.Constraint("Equal", 2, 3))
sketch6.addConstraint(Sketcher.Constraint("Symmetric", 0, 3, 1, 3, -1, 1))
sketch6.addConstraint(Sketcher.Constraint("Symmetric", 2, 3, 3, 3, -1, 1))
sketch6.addConstraint(Sketcher.Constraint("PointOnObject", 0, 3, -2))
sketch6.addConstraint(Sketcher.Constraint("PointOnObject", 2, 3, -2))
sketch6.addConstraint(Sketcher.Constraint("Diameter", 0, 45.0))
sketch6.addConstraint(Sketcher.Constraint("DistanceY", 0, 3, 1, 3, 165.0))
sketch6.addConstraint(Sketcher.Constraint("DistanceY", 2, 3, 1, 3, 55.0))
pocket2 = body4.newObject("PartDesign::Pocket", "Pocket001")
pocket2.Profile = sketch6
pocket2.Length = 216.341973
pocket2.Reversed = True
body5 = doc.addObject("PartDesign::Body", "Body004")

sketch7 = body5.newObject("Sketcher::SketchObject", "Sketch006")
sketch7.AttachmentSupport = (doc.getObject("XZ_Plane004"), [""])
sketch7.MapMode = "FlatFace"
add_polygon(sketch7, [(24, -10), (24, 10), (10, 24), (-10, 24), (-24, 10), (-24, -10), (-10, -24), (10, -24)])
sketch7.addConstraint(Sketcher.Constraint("Vertical", 0))
sketch7.addConstraint(Sketcher.Constraint("Horizontal", 2))
sketch7.addConstraint(Sketcher.Constraint("Vertical", 4))
sketch7.addConstraint(Sketcher.Constraint("Horizontal", 6))
sketch7.addConstraint(Sketcher.Constraint("Symmetric", 0, 2, 4, 2, -1, 1))
sketch7.addConstraint(Sketcher.Constraint("Symmetric", 1, 2, 5, 2, -1, 1))
sketch7.addConstraint(Sketcher.Constraint("Perpendicular", 1, 3))
sketch7.addConstraint(Sketcher.Constraint("Perpendicular", 5, 7))
sketch7.addConstraint(Sketcher.Constraint("Horizontal", 0, 2, 3, 2))
sketch7.addConstraint(Sketcher.Constraint("Horizontal", 4, 2, 7, 2))
sketch7.addConstraint(Sketcher.Constraint("Vertical", 2, 2, 5, 2))
sketch7.addConstraint(Sketcher.Constraint("Equal", 6, 0))
sketch7.addConstraint(Sketcher.Constraint("DistanceX", 2, 2, 2, 1, 20.0))
sketch7.addConstraint(Sketcher.Constraint("Distance", 1, 20.0))
pad5 = body5.newObject("PartDesign::Pad", "Pad004")
pad5.Profile = sketch7
pad5.Length = 250
pad5.Midplane = True
body6 = doc.addObject("PartDesign::Body", "Body005")

sketch8 = body6.newObject("Sketcher::SketchObject", "Sketch007")
sketch8.AttachmentSupport = (doc.getObject("YZ_Plane005"), [""])
sketch8.MapMode = "FlatFace"
add_polygon(sketch8, [(-98.2, 43), (-82.5, 43), (-82.5, 45), (-99.7, 45), (-105, 2), (-106.4, 2), (-106.4, 0), (-103.4, 0)])
sketch8.addGeometry(Part.LineSegment(V(-82.5, 0, 0), V(-82.5, 45, 0)), True)
sketch8.addConstraint(Sketcher.Constraint("Horizontal", 0))
sketch8.addConstraint(Sketcher.Constraint("Vertical", 1))
sketch8.addConstraint(Sketcher.Constraint("Horizontal", 2))
sketch8.addConstraint(Sketcher.Constraint("Horizontal", 4))
sketch8.addConstraint(Sketcher.Constraint("Vertical", 5))
sketch8.addConstraint(Sketcher.Constraint("Horizontal", 6))
sketch8.addConstraint(Sketcher.Constraint("Vertical", 8))
sketch8.addConstraint(Sketcher.Constraint("Coincident", 8, 2, 1, 2))
sketch8.addConstraint(Sketcher.Constraint("PointOnObject", 5, 2, -1))
sketch8.addConstraint(Sketcher.Constraint("PointOnObject", 8, 1, -1))
sketch8.addConstraint(Sketcher.Constraint("Parallel", 3, 7))
sketch8.addConstraint(Sketcher.Constraint("Equal", 1, 5))
sketch8.addConstraint(Sketcher.Constraint("DistanceX", 6, 1, 6, 2, 3.0))
sketch8.addConstraint(Sketcher.Constraint("DistanceY", 1, 1, 1, 2, 2.0))
sketch8.addConstraint(Sketcher.Constraint("DistanceY", 8, 1, 8, 2, 45.0))
sketch8.addConstraint(Sketcher.Constraint("Angle", 3, Q("-97 deg")))
sketch8.addConstraint(Sketcher.Constraint("DistanceX", 3, 2, -1, 1, 105.0))
sketch8.addConstraint(Sketcher.Constraint("DistanceX", 0, 2, -1, 1, 82.5))
sketch8.addConstraint(Sketcher.Constraint("DistanceX", 4, 2, 4, 1, 1.432051))
revolution = body6.newObject("PartDesign::Revolution", "Revolution")
revolution.Profile = sketch8
revolution.ReferenceAxis = (sketch8, ["Axis0"])
revolution.Angle = 360
doc.recompute()

fillet = body6.newObject("PartDesign::Fillet", "Fillet")
fillet.Base = (revolution, edges_at(revolution, [
    (0, -58.568, 2),
    (0, -61.568, 0),
    (0, -58.568, 0),
    (0, -60, 2),
    (0, -65.28, 45),
]))
fillet.Radius = 0.4

doc.recompute()
